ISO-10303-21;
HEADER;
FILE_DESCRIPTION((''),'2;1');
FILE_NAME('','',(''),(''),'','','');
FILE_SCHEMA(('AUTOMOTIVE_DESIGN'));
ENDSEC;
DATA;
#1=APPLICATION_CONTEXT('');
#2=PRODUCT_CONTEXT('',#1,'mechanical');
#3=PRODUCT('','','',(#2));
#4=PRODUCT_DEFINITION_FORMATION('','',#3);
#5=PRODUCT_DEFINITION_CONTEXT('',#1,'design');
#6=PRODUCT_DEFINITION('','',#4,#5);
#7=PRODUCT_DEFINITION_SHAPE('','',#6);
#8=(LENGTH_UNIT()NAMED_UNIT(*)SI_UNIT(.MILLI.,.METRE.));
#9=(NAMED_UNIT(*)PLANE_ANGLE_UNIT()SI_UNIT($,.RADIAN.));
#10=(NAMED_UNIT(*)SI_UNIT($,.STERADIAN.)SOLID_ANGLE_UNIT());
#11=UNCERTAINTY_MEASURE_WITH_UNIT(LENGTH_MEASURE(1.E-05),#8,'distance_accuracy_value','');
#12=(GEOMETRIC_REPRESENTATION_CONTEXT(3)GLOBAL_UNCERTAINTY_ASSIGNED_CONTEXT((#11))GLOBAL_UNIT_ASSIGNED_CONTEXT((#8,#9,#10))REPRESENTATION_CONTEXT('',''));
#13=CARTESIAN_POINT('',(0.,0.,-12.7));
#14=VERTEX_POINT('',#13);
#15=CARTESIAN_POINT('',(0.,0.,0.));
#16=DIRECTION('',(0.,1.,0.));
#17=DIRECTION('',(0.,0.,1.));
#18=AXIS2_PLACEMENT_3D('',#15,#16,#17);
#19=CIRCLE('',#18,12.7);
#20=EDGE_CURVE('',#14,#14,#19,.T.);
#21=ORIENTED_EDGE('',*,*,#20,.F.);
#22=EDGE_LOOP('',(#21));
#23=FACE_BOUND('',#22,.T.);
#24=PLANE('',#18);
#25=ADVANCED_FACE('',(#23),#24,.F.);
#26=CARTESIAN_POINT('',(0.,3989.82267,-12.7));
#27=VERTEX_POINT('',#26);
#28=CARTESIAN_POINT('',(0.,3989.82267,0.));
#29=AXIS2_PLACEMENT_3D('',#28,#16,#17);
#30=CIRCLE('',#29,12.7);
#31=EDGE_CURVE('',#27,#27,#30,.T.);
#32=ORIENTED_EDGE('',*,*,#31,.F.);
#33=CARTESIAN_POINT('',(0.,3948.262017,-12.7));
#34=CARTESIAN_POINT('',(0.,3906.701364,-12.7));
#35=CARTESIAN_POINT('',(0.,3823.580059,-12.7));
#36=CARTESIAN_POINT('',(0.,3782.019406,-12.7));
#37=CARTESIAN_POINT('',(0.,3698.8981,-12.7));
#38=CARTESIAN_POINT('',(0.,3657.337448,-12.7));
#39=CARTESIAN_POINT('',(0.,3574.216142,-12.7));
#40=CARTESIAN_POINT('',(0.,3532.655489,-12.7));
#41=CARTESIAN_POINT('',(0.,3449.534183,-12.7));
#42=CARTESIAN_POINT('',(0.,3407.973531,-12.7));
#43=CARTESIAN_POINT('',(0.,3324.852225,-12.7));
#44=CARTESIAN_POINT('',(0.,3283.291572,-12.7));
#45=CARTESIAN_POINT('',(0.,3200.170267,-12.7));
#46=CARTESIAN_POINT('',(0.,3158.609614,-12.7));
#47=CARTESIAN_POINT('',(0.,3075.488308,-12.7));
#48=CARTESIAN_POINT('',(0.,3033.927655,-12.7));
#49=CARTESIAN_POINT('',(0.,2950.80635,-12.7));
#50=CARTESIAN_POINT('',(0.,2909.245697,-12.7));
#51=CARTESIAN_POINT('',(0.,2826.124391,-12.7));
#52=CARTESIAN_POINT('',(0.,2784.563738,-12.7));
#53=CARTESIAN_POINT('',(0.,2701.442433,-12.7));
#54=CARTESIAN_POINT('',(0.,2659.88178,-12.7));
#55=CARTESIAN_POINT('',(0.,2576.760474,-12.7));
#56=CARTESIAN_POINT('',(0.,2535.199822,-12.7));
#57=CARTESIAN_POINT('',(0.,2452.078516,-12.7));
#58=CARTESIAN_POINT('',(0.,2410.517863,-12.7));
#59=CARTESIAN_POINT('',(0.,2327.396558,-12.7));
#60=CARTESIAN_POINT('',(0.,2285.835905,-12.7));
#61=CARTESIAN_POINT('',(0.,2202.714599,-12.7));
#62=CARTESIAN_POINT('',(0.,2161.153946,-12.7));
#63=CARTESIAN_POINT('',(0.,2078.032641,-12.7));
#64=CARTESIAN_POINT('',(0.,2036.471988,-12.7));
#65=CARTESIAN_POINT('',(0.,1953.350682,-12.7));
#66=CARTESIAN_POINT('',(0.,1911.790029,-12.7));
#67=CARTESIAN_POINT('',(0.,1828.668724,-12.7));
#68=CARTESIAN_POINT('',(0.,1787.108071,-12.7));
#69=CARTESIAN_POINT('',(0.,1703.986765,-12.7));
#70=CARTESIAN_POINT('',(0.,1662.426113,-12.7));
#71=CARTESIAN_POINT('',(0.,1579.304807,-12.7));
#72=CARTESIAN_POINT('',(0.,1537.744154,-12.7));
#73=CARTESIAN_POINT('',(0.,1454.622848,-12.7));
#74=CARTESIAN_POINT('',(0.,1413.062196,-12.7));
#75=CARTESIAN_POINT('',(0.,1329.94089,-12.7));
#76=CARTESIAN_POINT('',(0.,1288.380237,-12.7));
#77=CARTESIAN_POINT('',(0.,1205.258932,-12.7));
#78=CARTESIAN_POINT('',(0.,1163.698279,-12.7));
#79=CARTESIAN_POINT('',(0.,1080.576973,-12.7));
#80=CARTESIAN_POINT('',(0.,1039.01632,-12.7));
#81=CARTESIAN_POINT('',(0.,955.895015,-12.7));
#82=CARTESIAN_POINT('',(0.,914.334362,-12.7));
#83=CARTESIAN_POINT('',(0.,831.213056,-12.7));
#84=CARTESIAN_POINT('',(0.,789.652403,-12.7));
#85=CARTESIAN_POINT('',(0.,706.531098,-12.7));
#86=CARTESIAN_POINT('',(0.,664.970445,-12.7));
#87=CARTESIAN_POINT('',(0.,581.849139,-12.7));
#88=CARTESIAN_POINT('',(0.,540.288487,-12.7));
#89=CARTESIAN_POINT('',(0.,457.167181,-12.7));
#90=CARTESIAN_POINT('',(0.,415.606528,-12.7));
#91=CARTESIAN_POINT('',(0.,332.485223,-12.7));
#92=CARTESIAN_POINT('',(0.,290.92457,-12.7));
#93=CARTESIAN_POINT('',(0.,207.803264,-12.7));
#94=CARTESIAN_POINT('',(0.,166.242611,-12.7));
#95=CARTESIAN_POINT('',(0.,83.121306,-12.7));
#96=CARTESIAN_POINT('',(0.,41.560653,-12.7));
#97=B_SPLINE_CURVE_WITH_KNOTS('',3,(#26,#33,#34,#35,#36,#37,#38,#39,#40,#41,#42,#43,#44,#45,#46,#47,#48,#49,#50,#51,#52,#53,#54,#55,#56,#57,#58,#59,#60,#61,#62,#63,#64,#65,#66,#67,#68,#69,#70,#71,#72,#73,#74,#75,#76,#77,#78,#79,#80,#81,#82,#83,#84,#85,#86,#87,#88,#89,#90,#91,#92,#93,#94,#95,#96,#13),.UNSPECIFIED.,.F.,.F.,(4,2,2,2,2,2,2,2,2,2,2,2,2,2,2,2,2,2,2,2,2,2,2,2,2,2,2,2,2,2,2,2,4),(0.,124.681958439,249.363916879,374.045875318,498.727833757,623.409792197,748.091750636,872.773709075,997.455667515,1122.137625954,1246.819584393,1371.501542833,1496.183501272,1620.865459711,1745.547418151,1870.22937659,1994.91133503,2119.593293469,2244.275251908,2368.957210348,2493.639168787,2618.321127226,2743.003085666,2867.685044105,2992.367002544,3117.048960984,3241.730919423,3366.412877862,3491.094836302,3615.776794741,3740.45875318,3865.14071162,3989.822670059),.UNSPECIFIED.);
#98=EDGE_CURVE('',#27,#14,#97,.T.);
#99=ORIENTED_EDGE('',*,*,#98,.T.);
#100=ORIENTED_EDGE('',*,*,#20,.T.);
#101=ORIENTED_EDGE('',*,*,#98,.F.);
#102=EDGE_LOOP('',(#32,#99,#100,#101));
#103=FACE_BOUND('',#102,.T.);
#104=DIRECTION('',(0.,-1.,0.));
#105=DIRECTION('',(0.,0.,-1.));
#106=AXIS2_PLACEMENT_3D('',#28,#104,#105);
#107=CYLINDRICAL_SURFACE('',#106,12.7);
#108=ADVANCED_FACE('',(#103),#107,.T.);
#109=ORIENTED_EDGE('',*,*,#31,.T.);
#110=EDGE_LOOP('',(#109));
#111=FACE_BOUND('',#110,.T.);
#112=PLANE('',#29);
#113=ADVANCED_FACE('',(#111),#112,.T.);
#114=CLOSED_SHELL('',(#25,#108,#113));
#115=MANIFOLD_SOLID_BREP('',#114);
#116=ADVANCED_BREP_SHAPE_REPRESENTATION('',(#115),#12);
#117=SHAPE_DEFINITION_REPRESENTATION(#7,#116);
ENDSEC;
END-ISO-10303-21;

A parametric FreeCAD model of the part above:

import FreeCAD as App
import Part
import Sketcher

V = App.Vector
Q = App.Units.Quantity

doc = App.newDocument("Part")
body = doc.addObject("PartDesign::Body", "Body")

# Sketch on XZ plane
sketch1 = body.newObject("Sketcher::SketchObject", "Sketch")
sketch1.AttachmentSupport = (doc.getObject("XZ_Plane"), [""])
sketch1.MapMode = "FlatFace"
sketch1.addGeometry(Part.Circle(V(0, 0, 0), V(0, 0, 1), 12.7), False)
sketch1.addConstraint([
    Sketcher.Constraint("Coincident", 0, 3, -1, 1),
    Sketcher.Constraint("Diameter", 0, Q("1 in")),
])
pad1 = body.newObject("PartDesign::Pad", "Pad")
pad1.Profile = sketch1
pad1.Length = 3989.82267
pad1.Reversed = True

doc.recompute()
